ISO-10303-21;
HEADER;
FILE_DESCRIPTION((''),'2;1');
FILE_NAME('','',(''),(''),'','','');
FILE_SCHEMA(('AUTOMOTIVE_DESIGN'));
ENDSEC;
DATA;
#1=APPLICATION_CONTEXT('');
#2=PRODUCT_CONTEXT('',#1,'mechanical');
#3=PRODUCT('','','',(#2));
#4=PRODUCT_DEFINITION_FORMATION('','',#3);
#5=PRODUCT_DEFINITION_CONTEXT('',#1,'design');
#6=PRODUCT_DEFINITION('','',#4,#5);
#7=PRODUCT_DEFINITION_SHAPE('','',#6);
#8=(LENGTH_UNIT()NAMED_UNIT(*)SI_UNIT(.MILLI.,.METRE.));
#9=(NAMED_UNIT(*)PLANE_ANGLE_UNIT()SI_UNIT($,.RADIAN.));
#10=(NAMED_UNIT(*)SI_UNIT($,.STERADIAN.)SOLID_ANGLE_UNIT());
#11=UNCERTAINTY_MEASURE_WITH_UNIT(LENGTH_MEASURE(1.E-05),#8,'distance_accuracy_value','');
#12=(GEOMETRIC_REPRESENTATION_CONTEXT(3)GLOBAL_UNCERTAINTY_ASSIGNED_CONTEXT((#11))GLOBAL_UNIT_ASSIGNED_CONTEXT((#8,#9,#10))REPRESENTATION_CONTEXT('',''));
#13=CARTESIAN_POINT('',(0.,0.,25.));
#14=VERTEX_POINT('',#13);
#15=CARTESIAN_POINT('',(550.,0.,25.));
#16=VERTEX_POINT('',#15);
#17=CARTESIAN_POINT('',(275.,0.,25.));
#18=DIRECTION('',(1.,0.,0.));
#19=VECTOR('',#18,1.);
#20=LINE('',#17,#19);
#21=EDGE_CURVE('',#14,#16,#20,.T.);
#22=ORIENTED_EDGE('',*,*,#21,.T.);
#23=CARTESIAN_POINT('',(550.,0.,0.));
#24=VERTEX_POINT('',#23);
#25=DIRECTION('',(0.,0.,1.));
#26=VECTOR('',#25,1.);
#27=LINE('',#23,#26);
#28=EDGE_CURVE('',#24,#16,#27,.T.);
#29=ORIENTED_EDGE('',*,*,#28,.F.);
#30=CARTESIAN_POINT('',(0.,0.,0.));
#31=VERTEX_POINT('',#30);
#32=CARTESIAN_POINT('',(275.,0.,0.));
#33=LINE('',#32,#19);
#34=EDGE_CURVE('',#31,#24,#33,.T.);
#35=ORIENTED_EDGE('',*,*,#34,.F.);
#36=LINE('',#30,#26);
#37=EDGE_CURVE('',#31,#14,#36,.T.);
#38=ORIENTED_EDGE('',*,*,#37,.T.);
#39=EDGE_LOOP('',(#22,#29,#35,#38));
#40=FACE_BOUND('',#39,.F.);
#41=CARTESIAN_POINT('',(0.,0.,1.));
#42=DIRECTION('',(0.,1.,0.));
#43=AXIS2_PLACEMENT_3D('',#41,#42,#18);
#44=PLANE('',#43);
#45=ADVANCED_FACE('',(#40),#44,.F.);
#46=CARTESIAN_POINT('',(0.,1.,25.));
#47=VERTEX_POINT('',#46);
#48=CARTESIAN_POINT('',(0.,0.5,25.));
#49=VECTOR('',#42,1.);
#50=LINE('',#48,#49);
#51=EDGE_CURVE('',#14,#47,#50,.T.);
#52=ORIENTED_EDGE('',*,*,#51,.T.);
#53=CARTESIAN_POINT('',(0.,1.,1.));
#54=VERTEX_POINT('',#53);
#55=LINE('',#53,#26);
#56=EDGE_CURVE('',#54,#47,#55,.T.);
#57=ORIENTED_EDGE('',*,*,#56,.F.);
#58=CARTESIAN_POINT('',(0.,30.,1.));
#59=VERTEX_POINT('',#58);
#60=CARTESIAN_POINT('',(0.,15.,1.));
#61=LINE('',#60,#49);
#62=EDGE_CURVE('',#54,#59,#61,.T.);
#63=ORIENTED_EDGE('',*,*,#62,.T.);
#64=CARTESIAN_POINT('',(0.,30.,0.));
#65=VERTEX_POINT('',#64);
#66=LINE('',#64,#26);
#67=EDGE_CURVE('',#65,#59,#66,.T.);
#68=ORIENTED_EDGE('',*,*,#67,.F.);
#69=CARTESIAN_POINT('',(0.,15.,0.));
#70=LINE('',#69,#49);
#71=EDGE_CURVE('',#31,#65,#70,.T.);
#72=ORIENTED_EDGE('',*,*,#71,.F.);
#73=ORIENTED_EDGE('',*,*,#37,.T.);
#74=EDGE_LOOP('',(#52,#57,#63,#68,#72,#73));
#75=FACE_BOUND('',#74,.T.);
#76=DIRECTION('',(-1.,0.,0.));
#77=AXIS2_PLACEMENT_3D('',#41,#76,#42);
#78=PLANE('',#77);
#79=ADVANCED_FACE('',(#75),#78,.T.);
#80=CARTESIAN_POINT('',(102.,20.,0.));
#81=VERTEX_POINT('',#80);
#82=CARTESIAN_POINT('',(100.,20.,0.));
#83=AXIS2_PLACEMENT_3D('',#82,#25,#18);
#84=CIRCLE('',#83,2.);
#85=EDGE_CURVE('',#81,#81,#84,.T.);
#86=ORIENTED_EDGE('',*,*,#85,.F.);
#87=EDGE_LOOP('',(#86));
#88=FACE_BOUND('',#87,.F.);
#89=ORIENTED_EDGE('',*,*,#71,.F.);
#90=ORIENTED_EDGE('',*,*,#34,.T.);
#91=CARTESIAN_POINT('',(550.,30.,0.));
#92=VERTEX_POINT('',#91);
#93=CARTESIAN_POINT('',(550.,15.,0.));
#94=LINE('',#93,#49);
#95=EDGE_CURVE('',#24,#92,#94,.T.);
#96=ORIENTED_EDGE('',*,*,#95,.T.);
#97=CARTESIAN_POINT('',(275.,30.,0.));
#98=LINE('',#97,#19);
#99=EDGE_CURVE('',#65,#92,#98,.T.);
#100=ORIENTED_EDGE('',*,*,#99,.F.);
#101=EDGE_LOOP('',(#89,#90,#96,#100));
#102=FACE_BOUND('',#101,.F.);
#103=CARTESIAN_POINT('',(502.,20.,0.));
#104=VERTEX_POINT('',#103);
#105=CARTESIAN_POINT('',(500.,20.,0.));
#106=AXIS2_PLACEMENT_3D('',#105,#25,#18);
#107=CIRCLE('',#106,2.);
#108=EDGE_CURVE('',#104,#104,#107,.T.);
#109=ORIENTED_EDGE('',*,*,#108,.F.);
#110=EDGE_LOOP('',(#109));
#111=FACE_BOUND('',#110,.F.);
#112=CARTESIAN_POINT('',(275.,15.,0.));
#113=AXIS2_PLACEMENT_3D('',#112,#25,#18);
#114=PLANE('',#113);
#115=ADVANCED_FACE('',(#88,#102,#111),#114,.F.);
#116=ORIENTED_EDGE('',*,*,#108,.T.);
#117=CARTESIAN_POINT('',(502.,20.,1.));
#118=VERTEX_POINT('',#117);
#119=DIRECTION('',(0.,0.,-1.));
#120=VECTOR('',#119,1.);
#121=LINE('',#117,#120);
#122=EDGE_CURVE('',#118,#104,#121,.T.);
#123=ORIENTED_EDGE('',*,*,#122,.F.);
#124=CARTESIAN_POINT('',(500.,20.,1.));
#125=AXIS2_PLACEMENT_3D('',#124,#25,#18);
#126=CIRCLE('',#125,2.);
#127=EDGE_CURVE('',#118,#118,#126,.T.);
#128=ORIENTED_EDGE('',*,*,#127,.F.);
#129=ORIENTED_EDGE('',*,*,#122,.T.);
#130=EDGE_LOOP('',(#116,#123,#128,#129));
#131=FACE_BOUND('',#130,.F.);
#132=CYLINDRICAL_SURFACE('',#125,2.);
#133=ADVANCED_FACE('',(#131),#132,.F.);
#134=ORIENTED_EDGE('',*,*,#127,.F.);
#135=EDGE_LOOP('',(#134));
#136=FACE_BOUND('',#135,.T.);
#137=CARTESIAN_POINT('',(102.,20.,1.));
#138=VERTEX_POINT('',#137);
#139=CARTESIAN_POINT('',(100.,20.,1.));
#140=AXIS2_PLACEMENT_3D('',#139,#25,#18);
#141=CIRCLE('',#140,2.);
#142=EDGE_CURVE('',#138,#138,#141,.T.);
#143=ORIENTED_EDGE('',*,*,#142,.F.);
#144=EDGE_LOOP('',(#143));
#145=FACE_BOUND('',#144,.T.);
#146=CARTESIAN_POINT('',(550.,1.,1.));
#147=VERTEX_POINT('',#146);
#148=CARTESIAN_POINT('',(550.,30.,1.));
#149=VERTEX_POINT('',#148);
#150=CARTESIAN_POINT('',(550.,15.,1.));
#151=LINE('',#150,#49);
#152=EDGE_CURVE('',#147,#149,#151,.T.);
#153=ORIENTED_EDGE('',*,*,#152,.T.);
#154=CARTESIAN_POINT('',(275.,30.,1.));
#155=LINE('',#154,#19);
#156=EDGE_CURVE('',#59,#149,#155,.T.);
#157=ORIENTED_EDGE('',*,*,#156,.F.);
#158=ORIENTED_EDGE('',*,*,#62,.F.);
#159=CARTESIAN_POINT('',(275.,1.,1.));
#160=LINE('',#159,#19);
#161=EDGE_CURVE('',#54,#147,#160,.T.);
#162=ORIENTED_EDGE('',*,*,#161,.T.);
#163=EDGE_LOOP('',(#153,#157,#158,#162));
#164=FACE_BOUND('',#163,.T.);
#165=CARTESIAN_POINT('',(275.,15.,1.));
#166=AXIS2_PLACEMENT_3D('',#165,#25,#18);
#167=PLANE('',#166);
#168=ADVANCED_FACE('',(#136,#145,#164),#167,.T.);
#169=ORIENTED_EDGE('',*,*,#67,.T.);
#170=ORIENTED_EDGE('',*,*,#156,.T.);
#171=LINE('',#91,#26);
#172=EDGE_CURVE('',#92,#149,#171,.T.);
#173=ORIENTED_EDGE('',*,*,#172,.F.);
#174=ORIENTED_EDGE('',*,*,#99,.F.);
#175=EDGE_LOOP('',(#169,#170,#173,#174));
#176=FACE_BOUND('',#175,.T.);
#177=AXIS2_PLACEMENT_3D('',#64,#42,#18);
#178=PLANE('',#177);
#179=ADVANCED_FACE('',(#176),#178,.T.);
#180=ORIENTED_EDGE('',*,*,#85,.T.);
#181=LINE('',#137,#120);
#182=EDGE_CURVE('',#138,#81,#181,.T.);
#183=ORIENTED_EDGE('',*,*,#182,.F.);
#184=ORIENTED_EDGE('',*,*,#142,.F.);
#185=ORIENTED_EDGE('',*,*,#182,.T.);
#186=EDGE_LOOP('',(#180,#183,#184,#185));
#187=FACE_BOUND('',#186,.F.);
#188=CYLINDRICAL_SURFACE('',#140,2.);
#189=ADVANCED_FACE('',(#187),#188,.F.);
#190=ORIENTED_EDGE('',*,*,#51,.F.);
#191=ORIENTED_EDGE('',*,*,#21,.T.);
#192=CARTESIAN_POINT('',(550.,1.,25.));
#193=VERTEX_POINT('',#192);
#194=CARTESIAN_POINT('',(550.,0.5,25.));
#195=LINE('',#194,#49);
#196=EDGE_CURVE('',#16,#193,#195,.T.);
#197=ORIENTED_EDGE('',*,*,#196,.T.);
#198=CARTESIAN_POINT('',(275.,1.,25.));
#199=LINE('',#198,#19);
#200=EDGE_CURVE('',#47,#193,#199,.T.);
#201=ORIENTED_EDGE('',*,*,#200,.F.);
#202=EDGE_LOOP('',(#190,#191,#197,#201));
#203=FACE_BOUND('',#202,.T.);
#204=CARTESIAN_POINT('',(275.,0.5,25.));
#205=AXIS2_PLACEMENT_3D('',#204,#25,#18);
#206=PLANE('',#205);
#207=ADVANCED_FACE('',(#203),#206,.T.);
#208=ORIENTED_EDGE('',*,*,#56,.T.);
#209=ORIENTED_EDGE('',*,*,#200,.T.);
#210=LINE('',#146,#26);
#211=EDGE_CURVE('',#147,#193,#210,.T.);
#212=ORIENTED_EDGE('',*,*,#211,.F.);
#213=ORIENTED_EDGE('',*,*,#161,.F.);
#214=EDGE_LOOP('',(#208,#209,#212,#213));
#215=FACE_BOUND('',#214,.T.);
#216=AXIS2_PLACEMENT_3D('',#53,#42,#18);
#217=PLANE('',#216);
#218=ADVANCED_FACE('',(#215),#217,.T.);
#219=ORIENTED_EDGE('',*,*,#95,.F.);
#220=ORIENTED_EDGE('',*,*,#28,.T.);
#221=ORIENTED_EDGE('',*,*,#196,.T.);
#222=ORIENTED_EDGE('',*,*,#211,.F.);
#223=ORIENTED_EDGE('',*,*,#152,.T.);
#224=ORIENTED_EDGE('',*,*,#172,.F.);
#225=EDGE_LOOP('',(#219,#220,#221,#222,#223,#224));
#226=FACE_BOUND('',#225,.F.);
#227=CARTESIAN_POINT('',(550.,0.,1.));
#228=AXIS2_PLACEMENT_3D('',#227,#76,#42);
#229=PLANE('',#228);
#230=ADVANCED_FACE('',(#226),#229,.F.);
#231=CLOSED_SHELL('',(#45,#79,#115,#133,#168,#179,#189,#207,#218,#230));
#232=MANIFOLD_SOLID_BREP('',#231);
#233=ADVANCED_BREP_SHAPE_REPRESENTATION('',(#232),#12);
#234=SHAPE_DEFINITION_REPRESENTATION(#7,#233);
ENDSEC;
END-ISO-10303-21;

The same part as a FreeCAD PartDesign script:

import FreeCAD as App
import Part
import Sketcher


def add_polygon(sketch, points):
    """Adds a closed chain of lines whose ends are joined by coincident constraints."""
    first, n = sketch.GeometryCount, len(points)
    for a, b in zip(points, points[1:] + points[:1]):
        sketch.addGeometry(Part.LineSegment(App.Vector(*a, 0), App.Vector(*b, 0)), False)
    for i in range(n):
        sketch.addConstraint(Sketcher.Constraint("Coincident", first + i, 2, first + (i + 1) % n, 1))

doc = App.newDocument("Part")
params = doc.addObject("Spreadsheet::Sheet", "Params")
for row, (alias, value) in enumerate([
    ("sketch1_width", "550 mm"),
    ("sketch1_height", "30 mm"),
    ("pad1_length", "1 mm"),
    ("sketch2_width", "550 mm"),
    ("sketch2_height", "1 mm"),
    ("pad2_length", "24 mm"),
    ("sketch3_diameter", "4 mm"),
], start=1):
    params.set(f"A{row}", alias)
    params.set(f"B{row}", "=" + value)
    params.setAlias(f"B{row}", alias)

body = doc.addObject("PartDesign::Body", "Body")

sketch1 = body.newObject("Sketcher::SketchObject", "Sketch")
sketch1.AttachmentSupport = (doc.getObject("XY_Plane"), [""])
sketch1.MapMode = "FlatFace"
add_polygon(sketch1, [(0, 30), (0, 0), (550, 0), (550, 30)])
sketch1.addConstraint(Sketcher.Constraint("Vertical", 0))
sketch1.addConstraint(Sketcher.Constraint("Horizontal", 1))
sketch1.addConstraint(Sketcher.Constraint("Vertical", 2))
sketch1.addConstraint(Sketcher.Constraint("Horizontal", 3))
sketch1.addConstraint(Sketcher.Constraint("Coincident", 0, 2, -1, 1))
sketch1.addConstraint(Sketcher.Constraint("DistanceX", 1, 1, 1, 2, 550.0))
sketch1.addConstraint(Sketcher.Constraint("DistanceY", 0, 2, 0, 1, 30.0))
sketch1.setExpression("Constraints[9]", "Params.sketch1_width")
sketch1.setExpression("Constraints[10]", "Params.sketch1_height")
pad1 = body.newObject("PartDesign::Pad", "Pad")
pad1.Profile = sketch1
pad1.setExpression("Length", "Params.pad1_length")

sketch2 = body.newObject("Sketcher::SketchObject", "Sketch001")
sketch2.AttachmentSupport = (doc.getObject("XY_Plane"), [""])
sketch2.MapMode = "FlatFace"
sketch2.AttachmentOffset = App.Placement(App.Vector(0, 0, 1), App.Rotation())
add_polygon(sketch2, [(0, 1), (0, 0), (550, 0), (550, 1)])
sketch2.addConstraint(Sketcher.Constraint("Vertical", 0))
sketch2.addConstraint(Sketcher.Constraint("Horizontal", 1))
sketch2.addConstraint(Sketcher.Constraint("Vertical", 2))
sketch2.addConstraint(Sketcher.Constraint("Horizontal", 3))
sketch2.addConstraint(Sketcher.Constraint("Coincident", 0, 2, -1, 1))
sketch2.addConstraint(Sketcher.Constraint("DistanceX", 1, 1, 1, 2, 550.0))
sketch2.addConstraint(Sketcher.Constraint("DistanceY", 0, 2, 0, 1, 1.0))
sketch2.setExpression("Constraints[9]", "Params.sketch2_width")
sketch2.setExpression("Constraints[10]", "Params.sketch2_height")
pad2 = body.newObject("PartDesign::Pad", "Pad001")
pad2.Profile = sketch2
pad2.setExpression("Length", "Params.pad2_length")

sketch3 = body.newObject("Sketcher::SketchObject", "Sketch002")
sketch3.AttachmentSupport = (doc.getObject("XY_Plane"), [""])
sketch3.MapMode = "FlatFace"
sketch3.AttachmentOffset = App.Placement(App.Vector(0, 0, 1), App.Rotation())
sketch3.addGeometry(Part.Circle(App.Vector(100, 20, 0), App.Vector(0, 0, 1), 2), False)
sketch3.addGeometry(Part.Circle(App.Vector(500, 20, 0), App.Vector(0, 0, 1), 2), False)
sketch3.addConstraint(Sketcher.Constraint("Equal", 0, 1))
sketch3.addConstraint(Sketcher.Constraint("Horizontal", 0, 3, 1, 3))
sketch3.addConstraint(Sketcher.Constraint("Diameter", 0, 4.0))
sketch3.addConstraint(Sketcher.Constraint("DistanceX", -1, 1, 0, 3, 100.0))
sketch3.addConstraint(Sketcher.Constraint("DistanceY", -1, 1, 0, 3, 20.0))
sketch3.addConstraint(Sketcher.Constraint("DistanceX", -1, 1, 1, 3, 500.0))
sketch3.setExpression("Constraints[2]", "Params.sketch3_diameter")
pocket1 = body.newObject("PartDesign::Pocket", "Pocket")
pocket1.Profile = sketch3
pocket1.Type = "ThroughAll"

doc.recompute()
